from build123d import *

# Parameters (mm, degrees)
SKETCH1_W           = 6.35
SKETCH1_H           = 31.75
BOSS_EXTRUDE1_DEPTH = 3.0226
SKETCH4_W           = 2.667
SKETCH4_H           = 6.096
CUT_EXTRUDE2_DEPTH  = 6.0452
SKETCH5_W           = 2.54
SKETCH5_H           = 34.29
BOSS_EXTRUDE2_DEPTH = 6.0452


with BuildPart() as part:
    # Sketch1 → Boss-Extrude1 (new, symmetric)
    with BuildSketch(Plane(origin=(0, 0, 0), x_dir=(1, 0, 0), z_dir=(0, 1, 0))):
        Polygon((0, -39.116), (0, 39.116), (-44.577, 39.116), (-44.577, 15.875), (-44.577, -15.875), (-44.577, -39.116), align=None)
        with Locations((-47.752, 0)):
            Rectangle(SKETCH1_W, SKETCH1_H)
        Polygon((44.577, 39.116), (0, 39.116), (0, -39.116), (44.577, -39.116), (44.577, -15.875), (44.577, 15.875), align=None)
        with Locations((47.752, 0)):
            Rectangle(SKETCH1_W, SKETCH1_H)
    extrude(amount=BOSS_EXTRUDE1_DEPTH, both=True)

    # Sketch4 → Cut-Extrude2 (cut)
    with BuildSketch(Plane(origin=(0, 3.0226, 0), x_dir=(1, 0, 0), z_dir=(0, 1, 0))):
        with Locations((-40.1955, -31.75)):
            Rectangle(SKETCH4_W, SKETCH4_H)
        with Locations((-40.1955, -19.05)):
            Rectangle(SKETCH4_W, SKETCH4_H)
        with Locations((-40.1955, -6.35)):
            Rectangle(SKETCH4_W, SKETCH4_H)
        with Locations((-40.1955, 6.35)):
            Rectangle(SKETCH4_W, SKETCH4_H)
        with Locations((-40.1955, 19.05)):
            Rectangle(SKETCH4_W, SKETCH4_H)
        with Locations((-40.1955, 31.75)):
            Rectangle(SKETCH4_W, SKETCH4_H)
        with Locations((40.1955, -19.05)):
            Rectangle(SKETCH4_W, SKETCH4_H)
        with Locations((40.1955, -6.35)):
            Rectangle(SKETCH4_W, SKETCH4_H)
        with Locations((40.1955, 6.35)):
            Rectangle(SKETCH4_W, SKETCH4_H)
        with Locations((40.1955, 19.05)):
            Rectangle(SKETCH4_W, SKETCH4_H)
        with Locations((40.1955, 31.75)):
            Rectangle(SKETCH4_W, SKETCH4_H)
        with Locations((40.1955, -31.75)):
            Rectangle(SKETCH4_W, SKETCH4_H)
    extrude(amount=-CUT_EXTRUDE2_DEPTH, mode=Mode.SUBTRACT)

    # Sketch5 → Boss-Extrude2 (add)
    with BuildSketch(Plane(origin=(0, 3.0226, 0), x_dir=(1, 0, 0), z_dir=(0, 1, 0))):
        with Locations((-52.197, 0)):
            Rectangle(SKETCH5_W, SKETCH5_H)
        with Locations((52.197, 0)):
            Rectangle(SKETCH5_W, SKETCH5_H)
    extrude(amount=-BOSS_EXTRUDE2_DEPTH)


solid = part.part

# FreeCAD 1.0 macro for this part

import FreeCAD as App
import Part
import Sketcher
from FreeCAD import Vector
Q = App.Units.Quantity

doc = App.newDocument("Part")
body = doc.addObject("PartDesign::Body", "Body")

# Sketch on XZ plane
sketch1 = body.newObject("Sketcher::SketchObject", "Sketch")
sketch1.AttachmentSupport = (doc.getObject("XZ_Plane"), [""])
sketch1.MapMode = "FlatFace"
sketch1.addGeometry(Part.LineSegment(Vector(-45, -39, 0), Vector(-45, -16, 0)), False)
sketch1.addGeometry(Part.LineSegment(Vector(-45, -16, 0), Vector(-51, -16, 0)), False)
sketch1.addGeometry(Part.LineSegment(Vector(-51, -16, 0), Vector(-51, 16, 0)), False)
sketch1.addGeometry(Part.LineSegment(Vector(-51, 16, 0), Vector(-45, 16, 0)), False)
sketch1.addGeometry(Part.LineSegment(Vector(-45, 16, 0), Vector(-45, 39, 0)), False)
sketch1.addGeometry(Part.LineSegment(Vector(-45, 39, 0), Vector(45, 39, 0)), False)
sketch1.addGeometry(Part.LineSegment(Vector(45, 39, 0), Vector(45, 16, 0)), False)
sketch1.addGeometry(Part.LineSegment(Vector(45, 16, 0), Vector(51, 16, 0)), False)
sketch1.addGeometry(Part.LineSegment(Vector(51, 16, 0), Vector(51, -16, 0)), False)
sketch1.addGeometry(Part.LineSegment(Vector(51, -16, 0), Vector(45, -16, 0)), False)
sketch1.addGeometry(Part.LineSegment(Vector(45, -16, 0), Vector(45, -39, 0)), False)
sketch1.addGeometry(Part.LineSegment(Vector(45, -39, 0), Vector(-45, -39, 0)), False)
sketch1.addConstraint(Sketcher.Constraint("Coincident", 0, 2, 1, 1))
sketch1.addConstraint(Sketcher.Constraint("Coincident", 1, 2, 2, 1))
sketch1.addConstraint(Sketcher.Constraint("Coincident", 2, 2, 3, 1))
sketch1.addConstraint(Sketcher.Constraint("Coincident", 3, 2, 4, 1))
sketch1.addConstraint(Sketcher.Constraint("Coincident", 4, 2, 5, 1))
sketch1.addConstraint(Sketcher.Constraint("Coincident", 5, 2, 6, 1))
sketch1.addConstraint(Sketcher.Constraint("Coincident", 6, 2, 7, 1))
sketch1.addConstraint(Sketcher.Constraint("Coincident", 7, 2, 8, 1))
sketch1.addConstraint(Sketcher.Constraint("Coincident", 8, 2, 9, 1))
sketch1.addConstraint(Sketcher.Constraint("Coincident", 9, 2, 10, 1))
sketch1.addConstraint(Sketcher.Constraint("Coincident", 10, 2, 11, 1))
sketch1.addConstraint(Sketcher.Constraint("Coincident", 11, 2, 0, 1))
sketch1.addConstraint(Sketcher.Constraint("Vertical", 0))
sketch1.addConstraint(Sketcher.Constraint("Horizontal", 1))
sketch1.addConstraint(Sketcher.Constraint("Vertical", 2))
sketch1.addConstraint(Sketcher.Constraint("Horizontal", 3))
sketch1.addConstraint(Sketcher.Constraint("Vertical", 4))
sketch1.addConstraint(Sketcher.Constraint("Horizontal", 5))
sketch1.addConstraint(Sketcher.Constraint("Vertical", 6))
sketch1.addConstraint(Sketcher.Constraint("Horizontal", 7))
sketch1.addConstraint(Sketcher.Constraint("Vertical", 8))
sketch1.addConstraint(Sketcher.Constraint("Horizontal", 9))
sketch1.addConstraint(Sketcher.Constraint("Vertical", 10))
sketch1.addConstraint(Sketcher.Constraint("Horizontal", 11))
sketch1.addConstraint(Sketcher.Constraint("Symmetric", 0, 2, 6, 2, -1, 1))
sketch1.addConstraint(Sketcher.Constraint("Symmetric", 2, 2, 8, 2, -1, 1))
sketch1.addConstraint(Sketcher.Constraint("Symmetric", 4, 2, 10, 2, -1, 1))
sketch1.addConstraint(Sketcher.Constraint("Symmetric", 3, 2, 6, 2, -2))
sketch1.addConstraint(Sketcher.Constraint("DistanceX", 1, 2, 1, 1, Q("0.25 in")))
sketch1.addConstraint(Sketcher.Constraint("DistanceX", 5, 1, 5, 2, Q("3.51 in")))
sketch1.addConstraint(Sketcher.Constraint("DistanceY", 2, 1, 2, 2, Q("1.25 in")))
sketch1.addConstraint(Sketcher.Constraint("DistanceY", 0, 1, 0, 2, Q("0.915 in")))
pad1 = body.newObject("PartDesign::Pad", "Pad")
pad1.Profile = sketch1
pad1.Length = Q("0.238 in")
pad1.Midplane = True

# Sketch on XZ plane
sketch2 = body.newObject("Sketcher::SketchObject", "Sketch001")
sketch2.AttachmentSupport = (doc.getObject("XZ_Plane"), [""])
sketch2.MapMode = "FlatFace"
sketch2.AttachmentOffset = App.Placement(Vector(0, 0, -0.119 * 25.4), App.Rotation())
sketch2.addGeometry(Part.LineSegment(Vector(-41.5, 28.7, 0), Vector(-41.5, 34.8, 0)), False)
sketch2.addGeometry(Part.LineSegment(Vector(-41.5, 34.8, 0), Vector(-38.9, 34.8, 0)), False)
sketch2.addGeometry(Part.LineSegment(Vector(-38.9, 34.8, 0), Vector(-38.9, 28.7, 0)), False)
sketch2.addGeometry(Part.LineSegment(Vector(-38.9, 28.7, 0), Vector(-41.5, 28.7, 0)), False)
sketch2.addGeometry(Part.LineSegment(Vector(-41.5, 16, 0), Vector(-41.5, 22.1, 0)), False)
sketch2.addGeometry(Part.LineSegment(Vector(-41.5, 22.1, 0), Vector(-38.9, 22.1, 0)), False)
sketch2.addGeometry(Part.LineSegment(Vector(-38.9, 22.1, 0), Vector(-38.9, 16, 0)), False)
sketch2.addGeometry(Part.LineSegment(Vector(-38.9, 16, 0), Vector(-41.5, 16, 0)), False)
sketch2.addGeometry(Part.LineSegment(Vector(-41.5, 3.3, 0), Vector(-41.5, 9.4, 0)), False)
sketch2.addGeometry(Part.LineSegment(Vector(-41.5, 9.4, 0), Vector(-38.9, 9.4, 0)), False)
sketch2.addGeometry(Part.LineSegment(Vector(-38.9, 9.4, 0), Vector(-38.9, 3.3, 0)), False)
sketch2.addGeometry(Part.LineSegment(Vector(-38.9, 3.3, 0), Vector(-41.5, 3.3, 0)), False)
sketch2.addGeometry(Part.LineSegment(Vector(-41.5, -9.4, 0), Vector(-41.5, -3.3, 0)), False)
sketch2.addGeometry(Part.LineSegment(Vector(-41.5, -3.3, 0), Vector(-38.9, -3.3, 0)), False)
sketch2.addGeometry(Part.LineSegment(Vector(-38.9, -3.3, 0), Vector(-38.9, -9.4, 0)), False)
sketch2.addGeometry(Part.LineSegment(Vector(-38.9, -9.4, 0), Vector(-41.5, -9.4, 0)), False)
sketch2.addGeometry(Part.LineSegment(Vector(-41.5, -22.1, 0), Vector(-41.5, -16, 0)), False)
sketch2.addGeometry(Part.LineSegment(Vector(-41.5, -16, 0), Vector(-38.9, -16, 0)), False)
sketch2.addGeometry(Part.LineSegment(Vector(-38.9, -16, 0), Vector(-38.9, -22.1, 0)), False)
sketch2.addGeometry(Part.LineSegment(Vector(-38.9, -22.1, 0), Vector(-41.5, -22.1, 0)), False)
sketch2.addGeometry(Part.LineSegment(Vector(-41.5, -34.8, 0), Vector(-41.5, -28.7, 0)), False)
sketch2.addGeometry(Part.LineSegment(Vector(-41.5, -28.7, 0), Vector(-38.9, -28.7, 0)), False)
sketch2.addGeometry(Part.LineSegment(Vector(-38.9, -28.7, 0), Vector(-38.9, -34.8, 0)), False)
sketch2.addGeometry(Part.LineSegment(Vector(-38.9, -34.8, 0), Vector(-41.5, -34.8, 0)), False)
sketch2.addGeometry(Part.LineSegment(Vector(38.9, 16, 0), Vector(38.9, 22.1, 0)), False)
sketch2.addGeometry(Part.LineSegment(Vector(38.9, 22.1, 0), Vector(41.5, 22.1, 0)), False)
sketch2.addGeometry(Part.LineSegment(Vector(41.5, 22.1, 0), Vector(41.5, 16, 0)), False)
sketch2.addGeometry(Part.LineSegment(Vector(41.5, 16, 0), Vector(38.9, 16, 0)), False)
sketch2.addGeometry(Part.LineSegment(Vector(38.9, 3.3, 0), Vector(38.9, 9.4, 0)), False)
sketch2.addGeometry(Part.LineSegment(Vector(38.9, 9.4, 0), Vector(41.5, 9.4, 0)), False)
sketch2.addGeometry(Part.LineSegment(Vector(41.5, 9.4, 0), Vector(41.5, 3.3, 0)), False)
sketch2.addGeometry(Part.LineSegment(Vector(41.5, 3.3, 0), Vector(38.9, 3.3, 0)), False)
sketch2.addGeometry(Part.LineSegment(Vector(38.9, -9.4, 0), Vector(38.9, -3.3, 0)), False)
sketch2.addGeometry(Part.LineSegment(Vector(38.9, -3.3, 0), Vector(41.5, -3.3, 0)), False)
sketch2.addGeometry(Part.LineSegment(Vector(41.5, -3.3, 0), Vector(41.5, -9.4, 0)), False)
sketch2.addGeometry(Part.LineSegment(Vector(41.5, -9.4, 0), Vector(38.9, -9.4, 0)), False)
sketch2.addGeometry(Part.LineSegment(Vector(38.9, -22.1, 0), Vector(38.9, -16, 0)), False)
sketch2.addGeometry(Part.LineSegment(Vector(38.9, -16, 0), Vector(41.5, -16, 0)), False)
sketch2.addGeometry(Part.LineSegment(Vector(41.5, -16, 0), Vector(41.5, -22.1, 0)), False)
sketch2.addGeometry(Part.LineSegment(Vector(41.5, -22.1, 0), Vector(38.9, -22.1, 0)), False)
sketch2.addGeometry(Part.LineSegment(Vector(38.9, -34.8, 0), Vector(38.9, -28.7, 0)), False)
sketch2.addGeometry(Part.LineSegment(Vector(38.9, -28.7, 0), Vector(41.5, -28.7, 0)), False)
sketch2.addGeometry(Part.LineSegment(Vector(41.5, -28.7, 0), Vector(41.5, -34.8, 0)), False)
sketch2.addGeometry(Part.LineSegment(Vector(41.5, -34.8, 0), Vector(38.9, -34.8, 0)), False)
sketch2.addGeometry(Part.LineSegment(Vector(38.9, 28.7, 0), Vector(38.9, 34.8, 0)), False)
sketch2.addGeometry(Part.LineSegment(Vector(38.9, 34.8, 0), Vector(41.5, 34.8, 0)), False)
sketch2.addGeometry(Part.LineSegment(Vector(41.5, 34.8, 0), Vector(41.5, 28.7, 0)), False)
sketch2.addGeometry(Part.LineSegment(Vector(41.5, 28.7, 0), Vector(38.9, 28.7, 0)), False)
sketch2.addConstraint(Sketcher.Constraint("Coincident", 0, 2, 1, 1))
sketch2.addConstraint(Sketcher.Constraint("Coincident", 1, 2, 2, 1))
sketch2.addConstraint(Sketcher.Constraint("Coincident", 2, 2, 3, 1))
sketch2.addConstraint(Sketcher.Constraint("Coincident", 3, 2, 0, 1))
sketch2.addConstraint(Sketcher.Constraint("Coincident", 4, 2, 5, 1))
sketch2.addConstraint(Sketcher.Constraint("Coincident", 5, 2, 6, 1))
sketch2.addConstraint(Sketcher.Constraint("Coincident", 6, 2, 7, 1))
sketch2.addConstraint(Sketcher.Constraint("Coincident", 7, 2, 4, 1))
sketch2.addConstraint(Sketcher.Constraint("Coincident", 8, 2, 9, 1))
sketch2.addConstraint(Sketcher.Constraint("Coincident", 9, 2, 10, 1))
sketch2.addConstraint(Sketcher.Constraint("Coincident", 10, 2, 11, 1))
sketch2.addConstraint(Sketcher.Constraint("Coincident", 11, 2, 8, 1))
sketch2.addConstraint(Sketcher.Constraint("Coincident", 12, 2, 13, 1))
sketch2.addConstraint(Sketcher.Constraint("Coincident", 13, 2, 14, 1))
sketch2.addConstraint(Sketcher.Constraint("Coincident", 14, 2, 15, 1))
sketch2.addConstraint(Sketcher.Constraint("Coincident", 15, 2, 12, 1))
sketch2.addConstraint(Sketcher.Constraint("Coincident", 16, 2, 17, 1))
sketch2.addConstraint(Sketcher.Constraint("Coincident", 17, 2, 18, 1))
sketch2.addConstraint(Sketcher.Constraint("Coincident", 18, 2, 19, 1))
sketch2.addConstraint(Sketcher.Constraint("Coincident", 19, 2, 16, 1))
sketch2.addConstraint(Sketcher.Constraint("Coincident", 20, 2, 21, 1))
sketch2.addConstraint(Sketcher.Constraint("Coincident", 21, 2, 22, 1))
sketch2.addConstraint(Sketcher.Constraint("Coincident", 22, 2, 23, 1))
sketch2.addConstraint(Sketcher.Constraint("Coincident", 23, 2, 20, 1))
sketch2.addConstraint(Sketcher.Constraint("Coincident", 24, 2, 25, 1))
sketch2.addConstraint(Sketcher.Constraint("Coincident", 25, 2, 26, 1))
sketch2.addConstraint(Sketcher.Constraint("Coincident", 26, 2, 27, 1))
sketch2.addConstraint(Sketcher.Constraint("Coincident", 27, 2, 24, 1))
sketch2.addConstraint(Sketcher.Constraint("Coincident", 28, 2, 29, 1))
sketch2.addConstraint(Sketcher.Constraint("Coincident", 29, 2, 30, 1))
sketch2.addConstraint(Sketcher.Constraint("Coincident", 30, 2, 31, 1))
sketch2.addConstraint(Sketcher.Constraint("Coincident", 31, 2, 28, 1))
sketch2.addConstraint(Sketcher.Constraint("Coincident", 32, 2, 33, 1))
sketch2.addConstraint(Sketcher.Constraint("Coincident", 33, 2, 34, 1))
sketch2.addConstraint(Sketcher.Constraint("Coincident", 34, 2, 35, 1))
sketch2.addConstraint(Sketcher.Constraint("Coincident", 35, 2, 32, 1))
sketch2.addConstraint(Sketcher.Constraint("Coincident", 36, 2, 37, 1))
sketch2.addConstraint(Sketcher.Constraint("Coincident", 37, 2, 38, 1))
sketch2.addConstraint(Sketcher.Constraint("Coincident", 38, 2, 39, 1))
sketch2.addConstraint(Sketcher.Constraint("Coincident", 39, 2, 36, 1))
sketch2.addConstraint(Sketcher.Constraint("Coincident", 40, 2, 41, 1))
sketch2.addConstraint(Sketcher.Constraint("Coincident", 41, 2, 42, 1))
sketch2.addConstraint(Sketcher.Constraint("Coincident", 42, 2, 43, 1))
sketch2.addConstraint(Sketcher.Constraint("Coincident", 43, 2, 40, 1))
sketch2.addConstraint(Sketcher.Constraint("Coincident", 44, 2, 45, 1))
sketch2.addConstraint(Sketcher.Constraint("Coincident", 45, 2, 46, 1))
sketch2.addConstraint(Sketcher.Constraint("Coincident", 46, 2, 47, 1))
sketch2.addConstraint(Sketcher.Constraint("Coincident", 47, 2, 44, 1))
sketch2.addConstraint(Sketcher.Constraint("Vertical", 0))
sketch2.addConstraint(Sketcher.Constraint("Horizontal", 1))
sketch2.addConstraint(Sketcher.Constraint("Vertical", 2))
sketch2.addConstraint(Sketcher.Constraint("Horizontal", 3))
sketch2.addConstraint(Sketcher.Constraint("Vertical", 4))
sketch2.addConstraint(Sketcher.Constraint("Horizontal", 5))
sketch2.addConstraint(Sketcher.Constraint("Vertical", 6))
sketch2.addConstraint(Sketcher.Constraint("Horizontal", 7))
sketch2.addConstraint(Sketcher.Constraint("Vertical", 8))
sketch2.addConstraint(Sketcher.Constraint("Horizontal", 9))
sketch2.addConstraint(Sketcher.Constraint("Vertical", 10))
sketch2.addConstraint(Sketcher.Constraint("Horizontal", 11))
sketch2.addConstraint(Sketcher.Constraint("Vertical", 12))
sketch2.addConstraint(Sketcher.Constraint("Horizontal", 13))
sketch2.addConstraint(Sketcher.Constraint("Vertical", 14))
sketch2.addConstraint(Sketcher.Constraint("Horizontal", 15))
sketch2.addConstraint(Sketcher.Constraint("Vertical", 16))
sketch2.addConstraint(Sketcher.Constraint("Horizontal", 17))
sketch2.addConstraint(Sketcher.Constraint("Vertical", 18))
sketch2.addConstraint(Sketcher.Constraint("Horizontal", 19))
sketch2.addConstraint(Sketcher.Constraint("Vertical", 20))
sketch2.addConstraint(Sketcher.Constraint("Horizontal", 21))
sketch2.addConstraint(Sketcher.Constraint("Vertical", 22))
sketch2.addConstraint(Sketcher.Constraint("Horizontal", 23))
sketch2.addConstraint(Sketcher.Constraint("Vertical", 24))
sketch2.addConstraint(Sketcher.Constraint("Horizontal", 25))
sketch2.addConstraint(Sketcher.Constraint("Vertical", 26))
sketch2.addConstraint(Sketcher.Constraint("Horizontal", 27))
sketch2.addConstraint(Sketcher.Constraint("Vertical", 28))
sketch2.addConstraint(Sketcher.Constraint("Horizontal", 29))
sketch2.addConstraint(Sketcher.Constraint("Vertical", 30))
sketch2.addConstraint(Sketcher.Constraint("Horizontal", 31))
sketch2.addConstraint(Sketcher.Constraint("Vertical", 32))
sketch2.addConstraint(Sketcher.Constraint("Horizontal", 33))
sketch2.addConstraint(Sketcher.Constraint("Vertical", 34))
sketch2.addConstraint(Sketcher.Constraint("Horizontal", 35))
sketch2.addConstraint(Sketcher.Constraint("Vertical", 36))
sketch2.addConstraint(Sketcher.Constraint("Horizontal", 37))
sketch2.addConstraint(Sketcher.Constraint("Vertical", 38))
sketch2.addConstraint(Sketcher.Constraint("Horizontal", 39))
sketch2.addConstraint(Sketcher.Constraint("Vertical", 40))
sketch2.addConstraint(Sketcher.Constraint("Horizontal", 41))
sketch2.addConstraint(Sketcher.Constraint("Vertical", 42))
sketch2.addConstraint(Sketcher.Constraint("Horizontal", 43))
sketch2.addConstraint(Sketcher.Constraint("Vertical", 44))
sketch2.addConstraint(Sketcher.Constraint("Horizontal", 45))
sketch2.addConstraint(Sketcher.Constraint("Vertical", 46))
sketch2.addConstraint(Sketcher.Constraint("Horizontal", 47))
sketch2.addConstraint(Sketcher.Constraint("Symmetric", 18, 2, 24, 2, -1, 1))
sketch2.addConstraint(Sketcher.Constraint("Symmetric", 16, 2, 26, 2, -1, 1))
sketch2.addConstraint(Sketcher.Constraint("Symmetric", 14, 2, 28, 2, -1, 1))
sketch2.addConstraint(Sketcher.Constraint("Symmetric", 12, 2, 30, 2, -1, 1))
sketch2.addConstraint(Sketcher.Constraint("Symmetric", 10, 2, 32, 2, -1, 1))
sketch2.addConstraint(Sketcher.Constraint("Symmetric", 8, 2, 34, 2, -1, 1))
sketch2.addConstraint(Sketcher.Constraint("Symmetric", 6, 2, 36, 2, -1, 1))
sketch2.addConstraint(Sketcher.Constraint("Symmetric", 4, 2, 38, 2, -1, 1))
sketch2.addConstraint(Sketcher.Constraint("Symmetric", 2, 2, 40, 2, -1, 1))
sketch2.addConstraint(Sketcher.Constraint("Symmetric", 0, 2, 42, 2, -1, 1))
sketch2.addConstraint(Sketcher.Constraint("Symmetric", 22, 2, 44, 2, -1, 1))
sketch2.addConstraint(Sketcher.Constraint("Symmetric", 20, 2, 46, 2, -1, 1))
sketch2.addConstraint(Sketcher.Constraint("Symmetric", 5, 2, 24, 2, -2))
sketch2.addConstraint(Sketcher.Constraint("Symmetric", 7, 2, 26, 2, -2))
sketch2.addConstraint(Sketcher.Constraint("Symmetric", 9, 2, 28, 2, -2))
sketch2.addConstraint(Sketcher.Constraint("Symmetric", 11, 2, 30, 2, -2))
sketch2.addConstraint(Sketcher.Constraint("Symmetric", 21, 2, 40, 2, -2))
sketch2.addConstraint(Sketcher.Constraint("Symmetric", 23, 2, 42, 2, -2))
sketch2.addConstraint(Sketcher.Constraint("Vertical", 3, 2, 4, 2))
sketch2.addConstraint(Sketcher.Constraint("Vertical", 2, 2, 5, 2))
sketch2.addConstraint(Sketcher.Constraint("Vertical", 7, 2, 8, 2))
sketch2.addConstraint(Sketcher.Constraint("Vertical", 6, 2, 9, 2))
sketch2.addConstraint(Sketcher.Constraint("Equal", 2, 4))
sketch2.addConstraint(Sketcher.Constraint("Equal", 6, 8))
sketch2.addConstraint(Sketcher.Constraint("DistanceY", 28, 2, 44, 2, Q("1 in")))
sketch2.addConstraint(Sketcher.Constraint("DistanceY", 0, 1, 0, 2, Q("0.24 in")))
sketch2.addConstraint(Sketcher.Constraint("DistanceY", 4, 2, 0, 2, Q("0.5 in")))
sketch2.addConstraint(Sketcher.Constraint("DistanceY", 12, 2, 8, 2, Q("0.5 in")))
sketch2.addConstraint(Sketcher.Constraint("DistanceX", 1, 1, 1, 2, Q("0.105 in")))
sketch2.addConstraint(Sketcher.Constraint("DistanceX", 1, 2, -1, 1, Q("1.53 in")))
pocket1 = body.newObject("PartDesign::Pocket", "Pocket")
pocket1.Profile = sketch2
pocket1.Length = Q("0.238 in")
pocket1.Reversed = True

# Sketch on XZ plane
sketch3 = body.newObject("Sketcher::SketchObject", "Sketch002")
sketch3.AttachmentSupport = (doc.getObject("XZ_Plane"), [""])
sketch3.MapMode = "FlatFace"
sketch3.AttachmentOffset = App.Placement(Vector(0, 0, -0.119 * 25.4), App.Rotation())
sketch3.addGeometry(Part.LineSegment(Vector(-53.5, -17.1, 0), Vector(-53.5, 17.1, 0)), False)
sketch3.addGeometry(Part.LineSegment(Vector(-53.5, 17.1, 0), Vector(-50.9, 17.1, 0)), False)
sketch3.addGeometry(Part.LineSegment(Vector(-50.9, 17.1, 0), Vector(-50.9, -17.1, 0)), False)
sketch3.addGeometry(Part.LineSegment(Vector(-50.9, -17.1, 0), Vector(-53.5, -17.1, 0)), False)
sketch3.addGeometry(Part.LineSegment(Vector(50.9, -17.1, 0), Vector(50.9, 17.1, 0)), False)
sketch3.addGeometry(Part.LineSegment(Vector(50.9, 17.1, 0), Vector(53.5, 17.1, 0)), False)
sketch3.addGeometry(Part.LineSegment(Vector(53.5, 17.1, 0), Vector(53.5, -17.1, 0)), False)
sketch3.addGeometry(Part.LineSegment(Vector(53.5, -17.1, 0), Vector(50.9, -17.1, 0)), False)
sketch3.addConstraint(Sketcher.Constraint("Coincident", 0, 2, 1, 1))
sketch3.addConstraint(Sketcher.Constraint("Coincident", 1, 2, 2, 1))
sketch3.addConstraint(Sketcher.Constraint("Coincident", 2, 2, 3, 1))
sketch3.addConstraint(Sketcher.Constraint("Coincident", 3, 2, 0, 1))
sketch3.addConstraint(Sketcher.Constraint("Coincident", 4, 2, 5, 1))
sketch3.addConstraint(Sketcher.Constraint("Coincident", 5, 2, 6, 1))
sketch3.addConstraint(Sketcher.Constraint("Coincident", 6, 2, 7, 1))
sketch3.addConstraint(Sketcher.Constraint("Coincident", 7, 2, 4, 1))
sketch3.addConstraint(Sketcher.Constraint("Vertical", 0))
sketch3.addConstraint(Sketcher.Constraint("Horizontal", 1))
sketch3.addConstraint(Sketcher.Constraint("Vertical", 2))
sketch3.addConstraint(Sketcher.Constraint("Horizontal", 3))
sketch3.addConstraint(Sketcher.Constraint("Vertical", 4))
sketch3.addConstraint(Sketcher.Constraint("Horizontal", 5))
sketch3.addConstraint(Sketcher.Constraint("Vertical", 6))
sketch3.addConstraint(Sketcher.Constraint("Horizontal", 7))
sketch3.addConstraint(Sketcher.Constraint("Symmetric", 2, 2, 4, 2, -1, 1))
sketch3.addConstraint(Sketcher.Constraint("Symmetric", 0, 2, 6, 2, -1, 1))
sketch3.addConstraint(Sketcher.Constraint("Horizontal", 1, 2, 4, 2))
sketch3.addConstraint(Sketcher.Constraint("DistanceX", 1, 1, 1, 2, Q("0.1 in")))
sketch3.addConstraint(Sketcher.Constraint("DistanceY", 0, 1, 0, 2, Q("1.35 in")))
sketch3.addConstraint(Sketcher.Constraint("DistanceX", 1, 2, 4, 2, Q("4.01 in")))
pad2 = body.newObject("PartDesign::Pad", "Pad001")
pad2.Profile = sketch3
pad2.Length = Q("0.238 in")

doc.recompute()
